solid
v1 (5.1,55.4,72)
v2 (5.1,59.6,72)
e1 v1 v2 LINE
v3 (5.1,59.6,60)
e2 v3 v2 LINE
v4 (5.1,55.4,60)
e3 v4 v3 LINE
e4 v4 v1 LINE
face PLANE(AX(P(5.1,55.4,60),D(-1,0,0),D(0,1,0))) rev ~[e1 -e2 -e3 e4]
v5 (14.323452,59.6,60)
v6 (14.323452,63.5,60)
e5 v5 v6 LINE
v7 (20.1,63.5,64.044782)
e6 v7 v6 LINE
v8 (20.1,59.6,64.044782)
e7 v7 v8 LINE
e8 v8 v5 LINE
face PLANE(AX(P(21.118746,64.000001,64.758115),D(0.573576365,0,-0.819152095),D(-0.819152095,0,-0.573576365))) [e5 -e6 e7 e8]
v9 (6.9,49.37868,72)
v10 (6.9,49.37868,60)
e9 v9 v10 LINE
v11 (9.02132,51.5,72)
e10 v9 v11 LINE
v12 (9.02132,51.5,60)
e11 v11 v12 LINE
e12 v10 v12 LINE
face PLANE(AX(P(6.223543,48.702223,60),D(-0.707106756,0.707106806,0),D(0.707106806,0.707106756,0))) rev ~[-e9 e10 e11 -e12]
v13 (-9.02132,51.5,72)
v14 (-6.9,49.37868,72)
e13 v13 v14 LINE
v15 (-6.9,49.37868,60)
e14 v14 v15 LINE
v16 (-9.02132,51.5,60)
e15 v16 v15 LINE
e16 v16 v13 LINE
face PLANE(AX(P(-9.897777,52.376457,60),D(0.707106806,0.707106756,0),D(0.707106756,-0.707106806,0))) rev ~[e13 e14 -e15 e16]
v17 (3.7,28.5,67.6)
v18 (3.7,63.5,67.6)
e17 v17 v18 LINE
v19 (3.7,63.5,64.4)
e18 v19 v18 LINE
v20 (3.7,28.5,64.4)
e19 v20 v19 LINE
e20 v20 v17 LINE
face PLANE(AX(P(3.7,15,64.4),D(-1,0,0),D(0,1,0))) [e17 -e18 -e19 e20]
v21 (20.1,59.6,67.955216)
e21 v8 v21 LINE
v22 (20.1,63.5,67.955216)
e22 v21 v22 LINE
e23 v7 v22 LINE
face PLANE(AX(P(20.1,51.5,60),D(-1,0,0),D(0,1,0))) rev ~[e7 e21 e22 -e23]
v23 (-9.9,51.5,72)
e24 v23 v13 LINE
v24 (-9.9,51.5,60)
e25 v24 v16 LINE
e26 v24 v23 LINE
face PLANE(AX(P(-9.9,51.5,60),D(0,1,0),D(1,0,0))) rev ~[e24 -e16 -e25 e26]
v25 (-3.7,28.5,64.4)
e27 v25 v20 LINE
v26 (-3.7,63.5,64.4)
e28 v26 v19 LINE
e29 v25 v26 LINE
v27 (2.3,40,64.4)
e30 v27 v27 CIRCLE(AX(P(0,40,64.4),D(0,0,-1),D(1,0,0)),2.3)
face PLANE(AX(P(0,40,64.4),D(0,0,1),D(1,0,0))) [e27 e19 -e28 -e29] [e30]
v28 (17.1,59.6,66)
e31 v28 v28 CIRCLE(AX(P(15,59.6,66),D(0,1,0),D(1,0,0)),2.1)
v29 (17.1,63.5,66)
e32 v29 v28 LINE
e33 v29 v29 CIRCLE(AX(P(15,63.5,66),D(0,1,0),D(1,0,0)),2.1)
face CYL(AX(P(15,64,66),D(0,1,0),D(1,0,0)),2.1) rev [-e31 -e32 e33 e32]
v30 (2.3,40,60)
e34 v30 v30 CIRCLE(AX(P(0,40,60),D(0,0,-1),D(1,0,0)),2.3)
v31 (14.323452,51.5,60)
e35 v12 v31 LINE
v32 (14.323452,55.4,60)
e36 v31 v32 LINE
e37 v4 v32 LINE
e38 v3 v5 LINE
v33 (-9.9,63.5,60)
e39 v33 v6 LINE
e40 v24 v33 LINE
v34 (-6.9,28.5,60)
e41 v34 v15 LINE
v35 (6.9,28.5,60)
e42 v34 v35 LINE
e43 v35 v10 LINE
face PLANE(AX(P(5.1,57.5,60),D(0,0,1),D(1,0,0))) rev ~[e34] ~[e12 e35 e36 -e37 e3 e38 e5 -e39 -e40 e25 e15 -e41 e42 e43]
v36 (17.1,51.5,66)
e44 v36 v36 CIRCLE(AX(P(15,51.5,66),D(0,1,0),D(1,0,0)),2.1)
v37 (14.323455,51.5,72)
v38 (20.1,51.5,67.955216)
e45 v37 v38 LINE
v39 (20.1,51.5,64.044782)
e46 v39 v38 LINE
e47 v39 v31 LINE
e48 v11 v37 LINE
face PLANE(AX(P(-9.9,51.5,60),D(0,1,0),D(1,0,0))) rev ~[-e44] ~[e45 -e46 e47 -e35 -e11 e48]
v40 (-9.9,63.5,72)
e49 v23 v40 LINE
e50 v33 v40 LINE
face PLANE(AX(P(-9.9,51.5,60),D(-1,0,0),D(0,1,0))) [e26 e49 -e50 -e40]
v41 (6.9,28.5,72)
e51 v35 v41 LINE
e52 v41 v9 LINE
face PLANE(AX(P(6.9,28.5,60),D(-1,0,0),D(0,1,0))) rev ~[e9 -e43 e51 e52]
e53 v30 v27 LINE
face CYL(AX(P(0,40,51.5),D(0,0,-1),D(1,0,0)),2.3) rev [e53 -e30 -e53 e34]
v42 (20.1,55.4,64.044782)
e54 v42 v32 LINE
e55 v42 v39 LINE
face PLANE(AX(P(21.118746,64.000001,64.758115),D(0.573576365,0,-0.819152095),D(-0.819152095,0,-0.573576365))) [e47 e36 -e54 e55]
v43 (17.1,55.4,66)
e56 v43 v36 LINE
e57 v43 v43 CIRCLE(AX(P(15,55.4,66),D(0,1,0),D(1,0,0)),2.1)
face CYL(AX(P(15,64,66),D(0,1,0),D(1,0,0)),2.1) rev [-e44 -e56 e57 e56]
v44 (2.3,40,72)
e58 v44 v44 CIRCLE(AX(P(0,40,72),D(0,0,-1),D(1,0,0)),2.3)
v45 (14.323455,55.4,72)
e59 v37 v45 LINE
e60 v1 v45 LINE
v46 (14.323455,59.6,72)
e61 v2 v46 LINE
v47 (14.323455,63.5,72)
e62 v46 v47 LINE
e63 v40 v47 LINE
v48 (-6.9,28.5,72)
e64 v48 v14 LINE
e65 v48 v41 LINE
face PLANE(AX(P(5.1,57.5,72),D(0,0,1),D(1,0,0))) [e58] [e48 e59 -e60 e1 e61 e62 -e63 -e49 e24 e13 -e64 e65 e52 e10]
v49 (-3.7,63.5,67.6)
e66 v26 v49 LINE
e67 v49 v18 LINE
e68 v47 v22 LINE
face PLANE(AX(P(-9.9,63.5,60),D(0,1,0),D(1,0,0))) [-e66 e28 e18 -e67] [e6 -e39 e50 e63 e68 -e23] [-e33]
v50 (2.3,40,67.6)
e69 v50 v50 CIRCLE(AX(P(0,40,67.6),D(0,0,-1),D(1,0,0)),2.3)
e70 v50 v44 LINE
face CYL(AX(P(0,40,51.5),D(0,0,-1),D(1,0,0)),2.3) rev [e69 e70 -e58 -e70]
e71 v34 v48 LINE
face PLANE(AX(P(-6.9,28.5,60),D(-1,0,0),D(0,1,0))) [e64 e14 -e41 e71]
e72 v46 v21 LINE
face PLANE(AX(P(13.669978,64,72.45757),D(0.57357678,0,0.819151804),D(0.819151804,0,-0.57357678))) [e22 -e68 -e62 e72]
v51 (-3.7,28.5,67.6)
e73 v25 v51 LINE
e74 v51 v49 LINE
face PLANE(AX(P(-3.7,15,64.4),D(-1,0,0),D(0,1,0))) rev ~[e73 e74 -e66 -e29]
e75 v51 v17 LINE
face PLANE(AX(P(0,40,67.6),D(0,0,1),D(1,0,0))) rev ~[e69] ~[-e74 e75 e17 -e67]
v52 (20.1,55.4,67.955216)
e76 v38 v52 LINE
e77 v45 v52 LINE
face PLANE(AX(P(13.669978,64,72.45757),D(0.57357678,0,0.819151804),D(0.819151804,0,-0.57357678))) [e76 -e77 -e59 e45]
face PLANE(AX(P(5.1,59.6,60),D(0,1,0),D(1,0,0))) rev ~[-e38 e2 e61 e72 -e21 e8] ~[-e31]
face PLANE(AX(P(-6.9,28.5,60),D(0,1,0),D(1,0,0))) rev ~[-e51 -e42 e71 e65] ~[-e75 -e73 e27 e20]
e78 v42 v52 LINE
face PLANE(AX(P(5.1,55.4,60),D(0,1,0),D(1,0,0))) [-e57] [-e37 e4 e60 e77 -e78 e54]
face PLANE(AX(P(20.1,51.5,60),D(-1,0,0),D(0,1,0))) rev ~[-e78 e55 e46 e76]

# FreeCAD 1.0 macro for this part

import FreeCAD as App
import Part
import Sketcher

V = App.Vector
Q = App.Units.Quantity


def add_polygon(sketch, points):
    """Adds a closed chain of lines whose ends are joined by coincident constraints."""
    first, n = sketch.GeometryCount, len(points)
    for a, b in zip(points, points[1:] + points[:1]):
        sketch.addGeometry(Part.LineSegment(App.Vector(*a, 0), App.Vector(*b, 0)), False)
    for i in range(n):
        sketch.addConstraint(Sketcher.Constraint("Coincident", first + i, 2, first + (i + 1) % n, 1))

doc = App.newDocument("Part")
body = doc.addObject("PartDesign::Body", "Body")

sketch1 = body.newObject("Sketcher::SketchObject", "Sketch")
sketch1.AttachmentSupport = (doc.getObject("XY_Plane"), [""])
sketch1.MapMode = "FlatFace"
sketch1.AttachmentOffset = App.Placement(V(0, 0, 64.4), App.Rotation())
add_polygon(sketch1, [(-4, 65), (-4, 15), (4, 15), (4, 65)])
sketch1.addConstraint([
    Sketcher.Constraint("Vertical", 0),
    Sketcher.Constraint("Horizontal", 1),
    Sketcher.Constraint("Vertical", 2),
    Sketcher.Constraint("Horizontal", 3),
    Sketcher.Constraint("DistanceY", 0, 2, 0, 1, Q("50 mm")),
    Sketcher.Constraint("DistanceX", 1, 1, 1, 2, Q("7.4 mm")),
    Sketcher.Constraint("DistanceY", -1, 1, 0, 2, Q("15 mm")),
    Sketcher.Constraint("DistanceX", 0, 2, -1, 1, Q("3.7 mm")),
])
pad1 = body.newObject("PartDesign::Pad", "Pad")
pad1.Profile = sketch1
pad1.Length = 3.2
body2 = doc.addObject("PartDesign::Body", "Body001")

sketch2 = body2.newObject("Sketcher::SketchObject", "Sketch001")
sketch2.AttachmentSupport = (doc.getObject("XY_Plane001"), [""])
sketch2.MapMode = "FlatFace"
sketch2.AttachmentOffset = App.Placement(V(0, 0, 60), App.Rotation())
add_polygon(sketch2, [(5.1, 59.6), (5.1, 55.4), (20.1, 55.4), (20.1, 59.6)])
sketch2.addConstraint([
    Sketcher.Constraint("Vertical", 0),
    Sketcher.Constraint("Horizontal", 1),
    Sketcher.Constraint("Vertical", 2),
    Sketcher.Constraint("Horizontal", 3),
    Sketcher.Constraint("DistanceX", 1, 1, 1, 2, Q("15 mm")),
    Sketcher.Constraint("DistanceY", 0, 2, 0, 1, Q("4.2 mm")),
    Sketcher.Constraint("DistanceX", -1, 1, 0, 2, Q("5.1 mm")),
    Sketcher.Constraint("DistanceY", -1, 1, 0, 2, Q("55.4 mm")),
])
pad2 = body2.newObject("PartDesign::Pad", "Pad001")
pad2.Profile = sketch2
pad2.Length = 12
body3 = doc.addObject("PartDesign::Body", "Body002")

sketch3 = body3.newObject("Sketcher::SketchObject", "Sketch002")
sketch3.AttachmentSupport = (doc.getObject("XZ_Plane002"), [""])
sketch3.MapMode = "FlatFace"
sketch3.AttachmentOffset = App.Placement(V(0, 0, -64), App.Rotation())
sketch3.addGeometry(Part.Circle(V(15, 66, 0), V(0, 0, 1), 2.1), False)
sketch3.addConstraint([
    Sketcher.Constraint("Diameter", 0, Q("4.2 mm")),
    Sketcher.Constraint("DistanceX", -1, 1, 0, 3, Q("15 mm")),
    Sketcher.Constraint("DistanceY", -1, 1, 0, 3, Q("66 mm")),
])
pad3 = body3.newObject("PartDesign::Pad", "Pad002")
pad3.Profile = sketch3
pad3.Length = 13
body4 = doc.addObject("PartDesign::Body", "Body003")

sketch4 = body4.newObject("Sketcher::SketchObject", "Sketch003")
sketch4.AttachmentSupport = (doc.getObject("XY_Plane003"), [""])
sketch4.MapMode = "FlatFace"
add_polygon(sketch4, [(5, 0), (-3, 5), (-3, -5)])
sketch4.addConstraint([
    Sketcher.Constraint("Vertical", 1),
    Sketcher.Constraint("PointOnObject", 2, 2, -1),
    Sketcher.Constraint("Equal", 0, 2),
    Sketcher.Constraint("Angle", 0, Q("150.000002 deg")),
    Sketcher.Constraint("DistanceX", -1, 1, 2, 2, Q("5.25 mm")),
    Sketcher.Constraint("DistanceX", 0, 2, -1, 1, Q("2.625 mm")),
])
pad4 = body4.newObject("PartDesign::Pad", "Pad003")
pad4.Profile = sketch4
pad4.Length = 13
body5 = doc.addObject("PartDesign::Body", "Body004")
doc.recompute()

body4.Placement = App.Placement(V(0, 0, 0), App.Rotation(V(1, 0, 0), 90))
boolean = body5.newObject("PartDesign::Boolean", "Boolean")
boolean.Type = "Fuse"
boolean.addObjects([body4])
body6 = doc.addObject("PartDesign::Body", "Body005")
doc.recompute()

body5.Placement = App.Placement(V(0, 0, 0), App.Rotation(V(0, 1, 0), 65.000022))
boolean2 = body6.newObject("PartDesign::Boolean", "Boolean001")
boolean2.Type = "Fuse"
boolean2.addObjects([body5])
body7 = doc.addObject("PartDesign::Body", "Body006")
doc.recompute()

body6.Placement = App.Placement(V(18.9, 64, 72), App.Rotation(V(0, 0, 1), 0))
boolean3 = body7.newObject("PartDesign::Boolean", "Boolean002")
boolean3.Type = "Fuse"
boolean3.addObjects([body6])
body8 = doc.addObject("PartDesign::Body", "Body007")

sketch5 = body8.newObject("Sketcher::SketchObject", "Sketch004")
sketch5.AttachmentSupport = (doc.getObject("XY_Plane007"), [""])
sketch5.MapMode = "FlatFace"
add_polygon(sketch5, [(5, 0), (-3, 5), (-3, -5)])
sketch5.addConstraint([
    Sketcher.Constraint("Vertical", 1),
    Sketcher.Constraint("PointOnObject", 2, 2, -1),
    Sketcher.Constraint("Equal", 0, 2),
    Sketcher.Constraint("Angle", 0, Q("150.000002 deg")),
    Sketcher.Constraint("DistanceX", -1, 1, 2, 2, Q("5.25 mm")),
    Sketcher.Constraint("DistanceX", 0, 2, -1, 1, Q("2.625 mm")),
])
pad5 = body8.newObject("PartDesign::Pad", "Pad004")
pad5.Profile = sketch5
pad5.Length = 13
body9 = doc.addObject("PartDesign::Body", "Body008")
doc.recompute()

body8.Placement = App.Placement(V(0, 0, 0), App.Rotation(V(1, 0, 0), 270))
boolean4 = body9.newObject("PartDesign::Boolean", "Boolean003")
boolean4.Type = "Fuse"
boolean4.addObjects([body8])
body10 = doc.addObject("PartDesign::Body", "Body009")
doc.recompute()

body9.Placement = App.Placement(V(0, 0, 0), App.Rotation(V(0, 1, 0), 4.999997))
boolean5 = body10.newObject("PartDesign::Boolean", "Boolean004")
boolean5.Type = "Fuse"
boolean5.addObjects([body9])
body11 = doc.addObject("PartDesign::Body", "Body010")
doc.recompute()

body10.Placement = App.Placement(V(18.9, 64.000001, 60), App.Rotation(V(0, 0, 1), 180))
boolean6 = body11.newObject("PartDesign::Boolean", "Boolean005")
boolean6.Type = "Fuse"
boolean6.addObjects([body10])
body12 = doc.addObject("PartDesign::Body", "Body011")
body12.AllowCompound = True

sketch6 = body12.newObject("Sketcher::SketchObject", "Sketch005")
sketch6.AttachmentSupport = (doc.getObject("XY_Plane011"), [""])
sketch6.MapMode = "FlatFace"
sketch6.AttachmentOffset = App.Placement(V(0, 0, 51.5), App.Rotation())
sketch6.addGeometry(Part.Circle(V(0, 40, 0), V(0, 0, 1), 2.3), False)
sketch6.addConstraint([
    Sketcher.Constraint("PointOnObject", 0, 3, -2),
    Sketcher.Constraint("Diameter", 0, Q("4.6 mm")),
    Sketcher.Constraint("DistanceY", -1, 1, 0, 3, Q("40 mm")),
])
pad6 = body12.newObject("PartDesign::Pad", "Pad005")
pad6.Profile = sketch6
pad6.Length = 41
doc.recompute()

boolean7 = body12.newObject("PartDesign::Boolean", "Boolean006")
boolean7.Type = "Fuse"
boolean7.addObjects([body])
doc.recompute()

boolean8 = body12.newObject("PartDesign::Boolean", "Boolean007")
boolean8.Type = "Fuse"
boolean8.addObjects([body2])
doc.recompute()

boolean9 = body12.newObject("PartDesign::Boolean", "Boolean008")
boolean9.Type = "Fuse"
boolean9.addObjects([body3])
doc.recompute()

boolean10 = body12.newObject("PartDesign::Boolean", "Boolean009")
boolean10.Type = "Fuse"
boolean10.addObjects([body7])
doc.recompute()

boolean11 = body12.newObject("PartDesign::Boolean", "Boolean010")
boolean11.Type = "Fuse"
boolean11.addObjects([body11])
body13 = doc.addObject("PartDesign::Body", "Body012")

sketch7 = body13.newObject("Sketcher::SketchObject", "Sketch006")
sketch7.AttachmentSupport = (doc.getObject("XY_Plane012"), [""])
sketch7.MapMode = "FlatFace"
add_polygon(sketch7, [(3, 0), (-2, 3), (-2, -3)])
sketch7.addConstraint([
    Sketcher.Constraint("Vertical", 1),
    Sketcher.Constraint("PointOnObject", 2, 2, -1),
    Sketcher.Constraint("Equal", 0, 2),
    Sketcher.Constraint("Angle", 0, Q("150.000002 deg")),
    Sketcher.Constraint("DistanceX", -1, 1, 2, 2, Q("3 mm")),
    Sketcher.Constraint("DistanceX", 0, 2, -1, 1, Q("1.5 mm")),
])
pad7 = body13.newObject("PartDesign::Pad", "Pad006")
pad7.Profile = sketch7
pad7.Length = 12
body14 = doc.addObject("PartDesign::Body", "Body013")
doc.recompute()

body13.Placement = App.Placement(V(7, 51.6, 60), App.Rotation(V(0, 0, 1), 15))
boolean12 = body14.newObject("PartDesign::Boolean", "Boolean011")
boolean12.Type = "Fuse"
boolean12.addObjects([body13])
body15 = doc.addObject("PartDesign::Body", "Body014")

sketch8 = body15.newObject("Sketcher::SketchObject", "Sketch007")
sketch8.AttachmentSupport = (doc.getObject("XY_Plane014"), [""])
sketch8.MapMode = "FlatFace"
add_polygon(sketch8, [(3, 0), (-2, 3), (-2, -3)])
sketch8.addConstraint([
    Sketcher.Constraint("Vertical", 1),
    Sketcher.Constraint("PointOnObject", 2, 2, -1),
    Sketcher.Constraint("Equal", 0, 2),
    Sketcher.Constraint("Angle", 0, Q("150.000002 deg")),
    Sketcher.Constraint("DistanceX", -1, 1, 2, 2, Q("3 mm")),
    Sketcher.Constraint("DistanceX", 0, 2, -1, 1, Q("1.5 mm")),
])
pad8 = body15.newObject("PartDesign::Pad", "Pad007")
pad8.Profile = sketch8
pad8.Length = 12
body16 = doc.addObject("PartDesign::Body", "Body015")
doc.recompute()

body15.Placement = App.Placement(V(-7, 51.6, 60), App.Rotation(V(0, 0, -1), 75))
boolean13 = body16.newObject("PartDesign::Boolean", "Boolean012")
boolean13.Type = "Fuse"
boolean13.addObjects([body15])
body17 = doc.addObject("PartDesign::Body", "Body016")

sketch9 = body17.newObject("Sketcher::SketchObject", "Sketch008")
sketch9.AttachmentSupport = (doc.getObject("XY_Plane016"), [""])
sketch9.MapMode = "FlatFace"
sketch9.AttachmentOffset = App.Placement(V(0, 0, 60), App.Rotation())
add_polygon(sketch9, [(-10, 64), (-10, 52), (20, 52), (20, 64)])
sketch9.addConstraint([
    Sketcher.Constraint("Vertical", 0),
    Sketcher.Constraint("Horizontal", 1),
    Sketcher.Constraint("Vertical", 2),
    Sketcher.Constraint("Horizontal", 3),
    Sketcher.Constraint("DistanceX", 1, 1, 1, 2, Q("30 mm")),
    Sketcher.Constraint("DistanceY", 0, 2, 0, 1, Q("12 mm")),
    Sketcher.Constraint("DistanceX", 0, 2, -1, 1, Q("9.9 mm")),
    Sketcher.Constraint("DistanceY", -1, 1, 0, 2, Q("51.5 mm")),
])
pad9 = body17.newObject("PartDesign::Pad", "Pad008")
pad9.Profile = sketch9
pad9.Length = 12
body18 = doc.addObject("PartDesign::Body", "Body017")

sketch10 = body18.newObject("Sketcher::SketchObject", "Sketch009")
sketch10.AttachmentSupport = (doc.getObject("XY_Plane017"), [""])
sketch10.MapMode = "FlatFace"
sketch10.AttachmentOffset = App.Placement(V(0, 0, 60), App.Rotation())
add_polygon(sketch10, [(-7, 52), (-7, 28), (7, 28), (7, 52)])
sketch10.addConstraint([
    Sketcher.Constraint("Vertical", 0),
    Sketcher.Constraint("Horizontal", 1),
    Sketcher.Constraint("Vertical", 2),
    Sketcher.Constraint("Horizontal", 3),
    Sketcher.Constraint("DistanceY", 0, 2, 0, 1, Q("23 mm")),
    Sketcher.Constraint("DistanceX", 1, 1, 1, 2, Q("13.8 mm")),
    Sketcher.Constraint("DistanceX", 0, 2, -1, 1, Q("6.9 mm")),
    Sketcher.Constraint("DistanceY", -1, 1, 0, 2, Q("28.5 mm")),
])
pad10 = body18.newObject("PartDesign::Pad", "Pad009")
pad10.Profile = sketch10
pad10.Length = 12
doc.recompute()

boolean14 = body18.newObject("PartDesign::Boolean", "Boolean013")
boolean14.Type = "Fuse"
boolean14.addObjects([body14])
doc.recompute()

boolean15 = body18.newObject("PartDesign::Boolean", "Boolean014")
boolean15.Type = "Fuse"
boolean15.addObjects([body16])
doc.recompute()

boolean16 = body18.newObject("PartDesign::Boolean", "Boolean015")
boolean16.Type = "Fuse"
boolean16.addObjects([body17])
doc.recompute()

boolean17 = body18.newObject("PartDesign::Boolean", "Boolean016")
boolean17.Type = "Cut"
boolean17.addObjects([body12])

doc.recompute()
